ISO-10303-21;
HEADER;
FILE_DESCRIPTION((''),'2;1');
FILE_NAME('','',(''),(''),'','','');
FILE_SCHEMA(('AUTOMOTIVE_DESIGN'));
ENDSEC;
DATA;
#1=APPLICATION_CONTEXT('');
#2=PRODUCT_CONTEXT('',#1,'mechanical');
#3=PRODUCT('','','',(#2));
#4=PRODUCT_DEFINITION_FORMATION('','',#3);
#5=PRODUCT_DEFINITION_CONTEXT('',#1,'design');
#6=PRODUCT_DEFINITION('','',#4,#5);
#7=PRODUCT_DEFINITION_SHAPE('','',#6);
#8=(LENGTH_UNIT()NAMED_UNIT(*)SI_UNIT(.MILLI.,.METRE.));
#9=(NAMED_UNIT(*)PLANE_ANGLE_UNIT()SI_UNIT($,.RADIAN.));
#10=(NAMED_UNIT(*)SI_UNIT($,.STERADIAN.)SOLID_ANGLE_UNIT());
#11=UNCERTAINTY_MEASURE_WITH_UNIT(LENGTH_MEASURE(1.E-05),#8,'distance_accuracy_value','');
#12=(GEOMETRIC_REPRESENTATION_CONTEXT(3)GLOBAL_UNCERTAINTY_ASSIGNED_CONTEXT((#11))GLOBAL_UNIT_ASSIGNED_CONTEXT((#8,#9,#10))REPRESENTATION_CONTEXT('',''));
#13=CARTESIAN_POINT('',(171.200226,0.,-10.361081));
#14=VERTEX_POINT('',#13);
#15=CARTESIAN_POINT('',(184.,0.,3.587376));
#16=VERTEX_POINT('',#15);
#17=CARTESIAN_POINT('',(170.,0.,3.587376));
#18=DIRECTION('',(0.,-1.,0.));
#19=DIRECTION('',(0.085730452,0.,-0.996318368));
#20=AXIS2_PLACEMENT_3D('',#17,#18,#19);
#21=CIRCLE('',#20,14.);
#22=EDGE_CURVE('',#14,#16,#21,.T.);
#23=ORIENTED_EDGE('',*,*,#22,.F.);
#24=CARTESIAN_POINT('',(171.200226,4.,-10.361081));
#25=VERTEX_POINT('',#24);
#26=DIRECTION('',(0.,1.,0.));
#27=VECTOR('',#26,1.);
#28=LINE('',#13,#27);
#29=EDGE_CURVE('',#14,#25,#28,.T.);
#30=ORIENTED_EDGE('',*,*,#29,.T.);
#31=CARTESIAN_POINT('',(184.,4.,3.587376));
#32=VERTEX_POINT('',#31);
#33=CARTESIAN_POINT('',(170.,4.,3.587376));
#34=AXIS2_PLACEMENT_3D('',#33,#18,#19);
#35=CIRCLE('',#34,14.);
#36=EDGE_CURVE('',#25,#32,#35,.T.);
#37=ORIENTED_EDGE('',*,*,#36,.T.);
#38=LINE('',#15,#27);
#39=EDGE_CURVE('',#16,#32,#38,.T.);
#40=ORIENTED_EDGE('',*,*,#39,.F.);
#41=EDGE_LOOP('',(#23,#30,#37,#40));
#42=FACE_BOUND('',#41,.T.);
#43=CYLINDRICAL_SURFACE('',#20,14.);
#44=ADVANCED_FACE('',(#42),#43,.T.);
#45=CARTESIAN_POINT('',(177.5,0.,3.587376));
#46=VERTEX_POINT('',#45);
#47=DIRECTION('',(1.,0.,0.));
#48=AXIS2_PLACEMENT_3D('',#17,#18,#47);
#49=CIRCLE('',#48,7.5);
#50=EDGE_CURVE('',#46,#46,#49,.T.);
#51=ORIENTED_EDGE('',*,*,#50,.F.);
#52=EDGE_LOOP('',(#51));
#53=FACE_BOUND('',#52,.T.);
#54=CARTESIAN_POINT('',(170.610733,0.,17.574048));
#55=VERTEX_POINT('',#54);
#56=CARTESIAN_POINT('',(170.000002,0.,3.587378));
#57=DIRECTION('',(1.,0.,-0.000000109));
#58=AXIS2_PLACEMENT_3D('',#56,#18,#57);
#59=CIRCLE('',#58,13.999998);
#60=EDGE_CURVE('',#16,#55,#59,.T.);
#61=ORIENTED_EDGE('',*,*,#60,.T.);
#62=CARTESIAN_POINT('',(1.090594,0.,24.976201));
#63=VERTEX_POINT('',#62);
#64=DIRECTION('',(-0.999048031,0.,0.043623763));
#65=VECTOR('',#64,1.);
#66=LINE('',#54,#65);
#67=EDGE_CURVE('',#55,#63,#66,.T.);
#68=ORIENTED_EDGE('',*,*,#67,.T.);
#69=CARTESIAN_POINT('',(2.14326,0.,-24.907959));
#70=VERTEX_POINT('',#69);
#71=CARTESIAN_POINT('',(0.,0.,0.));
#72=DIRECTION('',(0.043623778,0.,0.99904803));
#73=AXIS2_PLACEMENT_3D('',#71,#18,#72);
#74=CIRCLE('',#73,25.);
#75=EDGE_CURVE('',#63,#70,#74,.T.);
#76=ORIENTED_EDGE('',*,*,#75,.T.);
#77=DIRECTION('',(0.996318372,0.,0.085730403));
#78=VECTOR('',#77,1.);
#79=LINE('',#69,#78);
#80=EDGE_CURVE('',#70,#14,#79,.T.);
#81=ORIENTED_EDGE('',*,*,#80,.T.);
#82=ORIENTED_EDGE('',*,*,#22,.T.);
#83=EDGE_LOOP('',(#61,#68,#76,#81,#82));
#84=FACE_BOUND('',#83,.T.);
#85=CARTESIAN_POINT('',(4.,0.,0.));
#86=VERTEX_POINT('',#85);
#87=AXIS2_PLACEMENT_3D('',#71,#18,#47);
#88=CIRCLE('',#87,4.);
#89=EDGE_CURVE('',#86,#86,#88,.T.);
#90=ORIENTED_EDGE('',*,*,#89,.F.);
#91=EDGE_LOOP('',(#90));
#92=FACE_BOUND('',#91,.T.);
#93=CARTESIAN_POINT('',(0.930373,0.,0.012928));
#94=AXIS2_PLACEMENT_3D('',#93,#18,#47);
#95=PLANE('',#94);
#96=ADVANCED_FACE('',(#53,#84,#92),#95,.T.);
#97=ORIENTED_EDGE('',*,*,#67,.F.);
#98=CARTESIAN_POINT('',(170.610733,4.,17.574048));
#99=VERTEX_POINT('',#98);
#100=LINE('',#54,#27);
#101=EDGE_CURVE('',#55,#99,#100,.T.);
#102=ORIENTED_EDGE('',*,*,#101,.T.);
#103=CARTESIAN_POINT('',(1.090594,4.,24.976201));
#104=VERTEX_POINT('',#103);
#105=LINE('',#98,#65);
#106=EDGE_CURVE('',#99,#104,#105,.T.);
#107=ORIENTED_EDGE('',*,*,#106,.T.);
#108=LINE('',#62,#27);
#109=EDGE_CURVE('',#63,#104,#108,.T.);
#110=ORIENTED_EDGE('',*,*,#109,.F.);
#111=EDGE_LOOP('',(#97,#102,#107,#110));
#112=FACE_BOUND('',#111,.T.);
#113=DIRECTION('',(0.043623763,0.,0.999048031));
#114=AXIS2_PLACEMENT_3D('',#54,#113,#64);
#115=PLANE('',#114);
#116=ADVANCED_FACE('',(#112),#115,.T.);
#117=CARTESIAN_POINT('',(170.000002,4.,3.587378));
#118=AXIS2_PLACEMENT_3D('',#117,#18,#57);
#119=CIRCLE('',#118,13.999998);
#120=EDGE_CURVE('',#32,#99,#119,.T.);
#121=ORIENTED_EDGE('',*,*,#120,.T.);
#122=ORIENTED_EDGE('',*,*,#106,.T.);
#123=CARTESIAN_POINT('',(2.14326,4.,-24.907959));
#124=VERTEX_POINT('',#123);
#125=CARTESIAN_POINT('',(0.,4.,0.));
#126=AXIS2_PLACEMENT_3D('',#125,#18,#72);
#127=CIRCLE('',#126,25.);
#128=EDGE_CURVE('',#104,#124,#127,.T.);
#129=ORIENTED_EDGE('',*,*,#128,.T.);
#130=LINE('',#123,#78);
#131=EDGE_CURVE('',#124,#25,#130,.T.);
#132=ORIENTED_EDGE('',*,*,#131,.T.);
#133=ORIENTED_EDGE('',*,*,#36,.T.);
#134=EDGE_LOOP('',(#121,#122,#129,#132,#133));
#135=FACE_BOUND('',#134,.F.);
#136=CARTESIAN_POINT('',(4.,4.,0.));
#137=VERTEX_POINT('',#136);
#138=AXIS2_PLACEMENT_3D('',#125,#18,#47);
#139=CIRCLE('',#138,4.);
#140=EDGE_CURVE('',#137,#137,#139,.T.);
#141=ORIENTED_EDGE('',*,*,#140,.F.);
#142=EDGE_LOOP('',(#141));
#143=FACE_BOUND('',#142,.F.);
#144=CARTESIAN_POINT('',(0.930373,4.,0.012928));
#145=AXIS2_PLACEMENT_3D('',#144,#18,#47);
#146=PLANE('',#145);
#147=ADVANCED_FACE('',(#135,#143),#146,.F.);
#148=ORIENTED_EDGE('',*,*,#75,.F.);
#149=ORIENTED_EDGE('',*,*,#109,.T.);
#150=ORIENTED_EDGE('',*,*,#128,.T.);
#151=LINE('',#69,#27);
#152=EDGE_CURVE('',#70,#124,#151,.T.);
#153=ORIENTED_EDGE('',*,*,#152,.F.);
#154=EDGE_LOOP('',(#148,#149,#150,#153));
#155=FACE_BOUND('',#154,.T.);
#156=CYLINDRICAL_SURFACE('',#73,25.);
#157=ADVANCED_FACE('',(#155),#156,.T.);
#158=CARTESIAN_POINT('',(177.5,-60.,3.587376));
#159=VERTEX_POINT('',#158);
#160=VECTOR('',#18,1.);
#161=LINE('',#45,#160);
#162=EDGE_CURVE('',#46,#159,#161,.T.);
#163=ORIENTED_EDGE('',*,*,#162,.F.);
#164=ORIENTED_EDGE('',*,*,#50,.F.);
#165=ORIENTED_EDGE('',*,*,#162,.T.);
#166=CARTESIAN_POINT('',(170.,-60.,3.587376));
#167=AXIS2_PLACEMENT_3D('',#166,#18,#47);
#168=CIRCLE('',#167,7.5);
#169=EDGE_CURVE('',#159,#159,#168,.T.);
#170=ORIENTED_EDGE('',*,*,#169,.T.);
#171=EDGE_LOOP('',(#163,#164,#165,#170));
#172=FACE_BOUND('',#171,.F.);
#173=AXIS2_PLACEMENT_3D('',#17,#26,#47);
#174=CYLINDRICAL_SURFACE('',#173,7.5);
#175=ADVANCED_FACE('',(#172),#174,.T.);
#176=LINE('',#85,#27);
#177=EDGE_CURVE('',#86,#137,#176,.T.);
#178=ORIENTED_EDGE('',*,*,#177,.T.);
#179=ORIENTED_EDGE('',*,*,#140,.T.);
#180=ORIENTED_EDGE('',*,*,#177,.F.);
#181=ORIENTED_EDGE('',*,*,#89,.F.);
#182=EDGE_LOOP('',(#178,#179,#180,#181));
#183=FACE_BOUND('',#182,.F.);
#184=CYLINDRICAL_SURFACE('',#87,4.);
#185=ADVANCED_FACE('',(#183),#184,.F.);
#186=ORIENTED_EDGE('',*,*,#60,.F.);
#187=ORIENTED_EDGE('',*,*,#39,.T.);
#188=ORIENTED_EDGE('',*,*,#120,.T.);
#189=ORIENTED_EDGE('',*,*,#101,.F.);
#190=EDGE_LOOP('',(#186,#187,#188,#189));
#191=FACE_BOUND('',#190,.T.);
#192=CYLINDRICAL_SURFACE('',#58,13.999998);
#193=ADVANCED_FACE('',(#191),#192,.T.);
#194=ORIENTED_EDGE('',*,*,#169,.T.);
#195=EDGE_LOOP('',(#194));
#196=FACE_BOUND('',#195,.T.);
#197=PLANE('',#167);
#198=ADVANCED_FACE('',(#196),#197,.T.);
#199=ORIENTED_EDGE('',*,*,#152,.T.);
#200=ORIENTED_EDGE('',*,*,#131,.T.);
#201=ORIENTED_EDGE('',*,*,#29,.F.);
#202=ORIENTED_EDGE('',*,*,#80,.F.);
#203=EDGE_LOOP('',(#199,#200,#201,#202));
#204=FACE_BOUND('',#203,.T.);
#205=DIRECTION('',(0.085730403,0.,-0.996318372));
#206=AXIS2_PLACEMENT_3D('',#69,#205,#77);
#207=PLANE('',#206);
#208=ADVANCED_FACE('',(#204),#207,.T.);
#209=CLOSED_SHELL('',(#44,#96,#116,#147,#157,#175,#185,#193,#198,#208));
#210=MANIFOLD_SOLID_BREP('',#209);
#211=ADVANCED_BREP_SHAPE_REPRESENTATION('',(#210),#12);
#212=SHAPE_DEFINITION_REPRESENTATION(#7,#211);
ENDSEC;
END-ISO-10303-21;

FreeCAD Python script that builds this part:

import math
import FreeCAD as App
import Part
import Sketcher

V = App.Vector
Q = App.Units.Quantity

doc = App.newDocument("Part")
body = doc.addObject("PartDesign::Body", "Body")

# Sketch on XZ plane
sketch1 = body.newObject("Sketcher::SketchObject", "Sketch")
sketch1.AttachmentSupport = (doc.getObject("XZ_Plane"), [""])
sketch1.MapMode = "FlatFace"
sketch1.addGeometry([
    Part.ArcOfCircle(Part.Circle(V(0, 0, 0), V(0, 0, 1), 25), math.radians(87.499748), math.radians(274.918028)),  # 0
    Part.LineSegment(V(2.14326, -24.907959, 0), V(171.200226, -10.361081, 0)),  # 1
    Part.ArcOfCircle(Part.Circle(V(170, 3.587376, 0), V(0, 0, 1), 14), math.radians(-85.08197), math.radians(-0.000002)),  # 2
    Part.ArcOfCircle(Part.Circle(V(170.000002, 3.587378, 0), V(0, 0, 1), 13.999998), math.radians(-0.000006), math.radians(87.499756)),  # 3
    Part.LineSegment(V(170.610733, 17.574048, 0), V(1.090594, 24.976201, 0)),  # 4
    Part.Circle(V(0, 0, 0), V(0, 0, 1), 4),  # 5
], False)
sketch1.addConstraint([
    Sketcher.Constraint("Coincident", 0, 2, 1, 1),
    Sketcher.Constraint("Coincident", 1, 2, 2, 1),
    Sketcher.Constraint("Coincident", 2, 2, 3, 1),
    Sketcher.Constraint("Coincident", 3, 2, 4, 1),
    Sketcher.Constraint("Coincident", 4, 2, 0, 1),
    Sketcher.Constraint("Coincident", 0, 3, -1, 1),
    Sketcher.Constraint("Coincident", 5, 3, -1, 1),
    Sketcher.Constraint("Coincident", 3, 3, 2, 3),
    Sketcher.Constraint("Diameter", 5, Q("8 mm")),
    Sketcher.Constraint("Radius", 0, Q("25 mm")),
    Sketcher.Constraint("Radius", 2, Q("14 mm")),
    Sketcher.Constraint("DistanceX", -1, 1, 2, 3, Q("170 mm")),
    Sketcher.Constraint("DistanceY", -1, 1, 4, 2, Q("24.976201 mm")),
    Sketcher.Constraint("Distance", 1, Q("169.681671 mm")),
    Sketcher.Constraint("Distance", 4, Q("169.681671 mm")),
    Sketcher.Constraint("DistanceX", -1, 1, 0, 2, Q("2.14326 mm")),
    Sketcher.Constraint("DistanceY", 1, 2, -1, 1, Q("10.361081 mm")),
    Sketcher.Constraint("DistanceY", 2, 2, 3, 2, Q("13.986672 mm")),
])
pad1 = body.newObject("PartDesign::Pad", "Pad")
pad1.Profile = sketch1
pad1.Length = 4
pad1.Reversed = True

# Sketch on XZ plane
sketch2 = body.newObject("Sketcher::SketchObject", "Sketch001")
sketch2.AttachmentSupport = (doc.getObject("XZ_Plane"), [""])
sketch2.MapMode = "FlatFace"
sketch2.addGeometry(Part.Circle(V(170, 4, 0), V(0, 0, 1), 8), False)
sketch2.addConstraint([
    Sketcher.Constraint("Diameter", 0, Q("15 mm")),
    Sketcher.Constraint("DistanceX", -1, 1, 0, 3, Q("170 mm")),
    Sketcher.Constraint("DistanceY", -1, 1, 0, 3, Q("3.587376 mm")),
])
pad2 = body.newObject("PartDesign::Pad", "Pad001")
pad2.Profile = sketch2
pad2.Length = 60

doc.recompute()
